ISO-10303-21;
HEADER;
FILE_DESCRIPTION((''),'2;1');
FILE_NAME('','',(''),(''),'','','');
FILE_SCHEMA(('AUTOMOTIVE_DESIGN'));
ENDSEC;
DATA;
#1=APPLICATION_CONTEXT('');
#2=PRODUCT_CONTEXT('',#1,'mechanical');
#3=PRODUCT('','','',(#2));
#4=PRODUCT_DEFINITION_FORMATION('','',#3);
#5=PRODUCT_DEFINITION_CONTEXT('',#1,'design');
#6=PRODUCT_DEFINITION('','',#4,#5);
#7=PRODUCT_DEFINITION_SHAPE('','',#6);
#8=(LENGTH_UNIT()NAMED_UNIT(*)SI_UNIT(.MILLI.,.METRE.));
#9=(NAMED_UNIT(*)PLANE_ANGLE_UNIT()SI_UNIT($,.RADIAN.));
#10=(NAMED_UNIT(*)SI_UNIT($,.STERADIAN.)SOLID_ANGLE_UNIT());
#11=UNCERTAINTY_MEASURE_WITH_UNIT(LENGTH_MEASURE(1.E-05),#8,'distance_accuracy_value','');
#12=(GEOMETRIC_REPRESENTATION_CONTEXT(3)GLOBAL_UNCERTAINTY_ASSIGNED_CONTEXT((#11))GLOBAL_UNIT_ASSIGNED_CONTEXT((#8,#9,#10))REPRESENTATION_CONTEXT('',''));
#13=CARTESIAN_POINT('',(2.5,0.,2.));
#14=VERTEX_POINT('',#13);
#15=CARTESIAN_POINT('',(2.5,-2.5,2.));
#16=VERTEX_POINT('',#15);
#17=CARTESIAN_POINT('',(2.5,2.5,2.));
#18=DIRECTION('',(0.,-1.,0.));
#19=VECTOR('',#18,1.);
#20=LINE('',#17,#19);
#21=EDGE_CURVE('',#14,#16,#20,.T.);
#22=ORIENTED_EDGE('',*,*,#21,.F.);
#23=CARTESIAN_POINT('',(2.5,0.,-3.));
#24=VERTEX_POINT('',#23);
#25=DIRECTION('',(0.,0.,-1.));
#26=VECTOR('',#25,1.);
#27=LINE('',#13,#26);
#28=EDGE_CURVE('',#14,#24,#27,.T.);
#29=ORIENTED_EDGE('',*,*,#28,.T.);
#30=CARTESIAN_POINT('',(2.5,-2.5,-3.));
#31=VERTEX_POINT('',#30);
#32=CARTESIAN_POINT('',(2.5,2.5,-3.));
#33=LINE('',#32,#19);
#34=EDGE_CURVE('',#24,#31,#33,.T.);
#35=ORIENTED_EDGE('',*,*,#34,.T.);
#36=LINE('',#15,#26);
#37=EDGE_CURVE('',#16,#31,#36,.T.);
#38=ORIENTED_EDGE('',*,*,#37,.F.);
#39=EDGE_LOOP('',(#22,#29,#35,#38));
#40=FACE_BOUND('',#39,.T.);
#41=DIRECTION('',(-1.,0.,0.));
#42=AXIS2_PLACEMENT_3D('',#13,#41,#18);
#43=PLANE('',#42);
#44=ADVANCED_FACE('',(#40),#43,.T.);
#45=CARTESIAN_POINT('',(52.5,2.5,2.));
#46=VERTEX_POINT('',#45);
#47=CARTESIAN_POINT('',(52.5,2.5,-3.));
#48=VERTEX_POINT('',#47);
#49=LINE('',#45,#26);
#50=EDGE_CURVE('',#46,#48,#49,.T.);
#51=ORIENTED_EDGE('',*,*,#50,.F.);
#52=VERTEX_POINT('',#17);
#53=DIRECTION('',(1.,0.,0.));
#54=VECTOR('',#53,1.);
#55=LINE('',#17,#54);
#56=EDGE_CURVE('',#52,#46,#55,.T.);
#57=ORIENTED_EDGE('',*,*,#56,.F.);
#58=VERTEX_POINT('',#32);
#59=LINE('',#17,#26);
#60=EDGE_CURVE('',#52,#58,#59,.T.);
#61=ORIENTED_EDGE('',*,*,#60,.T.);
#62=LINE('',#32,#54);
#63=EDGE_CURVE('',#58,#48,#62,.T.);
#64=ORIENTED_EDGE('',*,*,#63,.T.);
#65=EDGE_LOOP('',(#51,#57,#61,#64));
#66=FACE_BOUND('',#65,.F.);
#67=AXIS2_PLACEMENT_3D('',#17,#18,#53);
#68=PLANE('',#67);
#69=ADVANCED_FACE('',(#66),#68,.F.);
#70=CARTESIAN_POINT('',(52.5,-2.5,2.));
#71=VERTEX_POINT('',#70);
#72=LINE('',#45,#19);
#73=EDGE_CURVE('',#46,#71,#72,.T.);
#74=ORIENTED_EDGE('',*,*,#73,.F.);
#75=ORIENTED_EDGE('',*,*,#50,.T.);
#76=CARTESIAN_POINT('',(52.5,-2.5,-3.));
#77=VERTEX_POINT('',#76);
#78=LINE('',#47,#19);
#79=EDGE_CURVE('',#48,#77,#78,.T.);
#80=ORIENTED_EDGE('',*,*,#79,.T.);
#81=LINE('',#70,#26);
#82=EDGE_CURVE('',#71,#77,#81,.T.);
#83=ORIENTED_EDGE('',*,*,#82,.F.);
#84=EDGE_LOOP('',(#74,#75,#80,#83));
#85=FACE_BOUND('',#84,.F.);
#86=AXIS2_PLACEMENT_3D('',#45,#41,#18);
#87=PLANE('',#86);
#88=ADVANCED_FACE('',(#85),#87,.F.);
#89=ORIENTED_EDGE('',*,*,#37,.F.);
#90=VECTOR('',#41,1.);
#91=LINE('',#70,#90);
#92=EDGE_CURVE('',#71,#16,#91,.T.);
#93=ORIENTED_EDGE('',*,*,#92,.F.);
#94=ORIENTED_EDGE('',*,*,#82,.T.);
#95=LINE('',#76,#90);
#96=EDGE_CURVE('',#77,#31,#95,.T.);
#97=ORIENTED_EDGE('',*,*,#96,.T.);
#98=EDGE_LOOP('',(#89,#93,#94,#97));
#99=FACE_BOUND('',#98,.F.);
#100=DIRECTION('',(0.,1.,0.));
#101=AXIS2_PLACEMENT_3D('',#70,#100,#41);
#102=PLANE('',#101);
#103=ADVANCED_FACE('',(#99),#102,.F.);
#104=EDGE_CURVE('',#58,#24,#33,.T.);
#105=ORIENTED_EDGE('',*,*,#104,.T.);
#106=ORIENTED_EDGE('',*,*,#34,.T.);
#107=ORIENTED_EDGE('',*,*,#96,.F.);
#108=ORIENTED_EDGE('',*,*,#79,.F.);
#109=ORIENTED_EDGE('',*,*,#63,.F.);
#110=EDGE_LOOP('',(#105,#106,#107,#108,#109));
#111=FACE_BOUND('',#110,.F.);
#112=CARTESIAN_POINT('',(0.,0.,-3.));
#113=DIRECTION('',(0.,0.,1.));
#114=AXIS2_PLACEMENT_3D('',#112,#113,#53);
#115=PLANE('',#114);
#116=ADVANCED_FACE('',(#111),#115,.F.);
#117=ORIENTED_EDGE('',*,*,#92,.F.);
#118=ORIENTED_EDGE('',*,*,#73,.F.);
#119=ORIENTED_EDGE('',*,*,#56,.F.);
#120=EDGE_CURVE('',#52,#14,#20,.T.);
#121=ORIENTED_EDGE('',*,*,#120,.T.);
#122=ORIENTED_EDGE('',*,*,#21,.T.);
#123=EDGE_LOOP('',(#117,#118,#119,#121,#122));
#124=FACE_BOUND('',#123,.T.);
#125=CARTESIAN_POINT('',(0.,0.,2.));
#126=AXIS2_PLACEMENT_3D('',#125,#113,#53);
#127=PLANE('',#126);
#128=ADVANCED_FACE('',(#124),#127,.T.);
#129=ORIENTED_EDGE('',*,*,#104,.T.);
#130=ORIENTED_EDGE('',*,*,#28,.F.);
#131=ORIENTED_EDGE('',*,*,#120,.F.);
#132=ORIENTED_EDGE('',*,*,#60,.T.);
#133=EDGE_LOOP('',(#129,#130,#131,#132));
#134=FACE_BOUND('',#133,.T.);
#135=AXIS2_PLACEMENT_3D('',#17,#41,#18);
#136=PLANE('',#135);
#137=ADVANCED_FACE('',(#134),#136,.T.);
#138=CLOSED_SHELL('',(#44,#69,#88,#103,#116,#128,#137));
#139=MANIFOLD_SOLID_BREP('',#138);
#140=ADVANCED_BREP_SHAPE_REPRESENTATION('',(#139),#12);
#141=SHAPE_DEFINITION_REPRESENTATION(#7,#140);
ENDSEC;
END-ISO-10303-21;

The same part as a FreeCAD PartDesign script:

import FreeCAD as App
import Part
import Sketcher
Q = App.Units.Quantity

doc = App.newDocument("Part")
params = doc.addObject("Spreadsheet::Sheet", "Params")
for row, (alias, value) in enumerate([
    ("sketch1_width", "50 mm"),
    ("pad1_length", "5 mm"),
], start=1):
    params.set(f"A{row}", alias)
    params.set(f"B{row}", "=" + value)
    params.setAlias(f"B{row}", alias)

body = doc.addObject("PartDesign::Body", "Body")

sketch1 = body.newObject("Sketcher::SketchObject", "Sketch")
sketch1.AttachmentSupport = (doc.getObject("XY_Plane"), [""])
sketch1.MapMode = "FlatFace"
sketch1.AttachmentOffset = App.Placement(App.Vector(0, 0, 2), App.Rotation())
sketch1.addGeometry([
    Part.LineSegment(App.Vector(52.5, 2.5, 0), App.Vector(2.5, 2.5, 0)),
    Part.LineSegment(App.Vector(2.5, 2.5, 0), App.Vector(2.5, -2.5, 0)),
    Part.LineSegment(App.Vector(2.5, -2.5, 0), App.Vector(52.5, -2.5, 0)),
    Part.LineSegment(App.Vector(52.5, -2.5, 0), App.Vector(52.5, 2.5, 0)),
], False)
sketch1.addConstraint([
    Sketcher.Constraint("Coincident", 0, 2, 1, 1),
    Sketcher.Constraint("Coincident", 1, 2, 2, 1),
    Sketcher.Constraint("Coincident", 2, 2, 3, 1),
    Sketcher.Constraint("Coincident", 3, 2, 0, 1),
    Sketcher.Constraint("Horizontal", 0),
    Sketcher.Constraint("Vertical", 1),
    Sketcher.Constraint("Horizontal", 2),
    Sketcher.Constraint("Vertical", 3),
    Sketcher.Constraint("DistanceX", 0, 2, 0, 1, Q("50 mm")),
    Sketcher.Constraint("DistanceX", -1, 1, 0, 2, Q("2.5 mm")),
    Sketcher.Constraint("DistanceY", -1, 1, 0, 2, Q("2.5 mm")),
    Sketcher.Constraint("DistanceY", 1, 2, -1, 1, Q("2.5 mm")),
])
sketch1.setExpression("Constraints[8]", "Params.sketch1_width")
pad1 = body.newObject("PartDesign::Pad", "Pad")
pad1.Profile = sketch1
pad1.setExpression("Length", "Params.pad1_length")
pad1.Reversed = True

doc.recompute()
